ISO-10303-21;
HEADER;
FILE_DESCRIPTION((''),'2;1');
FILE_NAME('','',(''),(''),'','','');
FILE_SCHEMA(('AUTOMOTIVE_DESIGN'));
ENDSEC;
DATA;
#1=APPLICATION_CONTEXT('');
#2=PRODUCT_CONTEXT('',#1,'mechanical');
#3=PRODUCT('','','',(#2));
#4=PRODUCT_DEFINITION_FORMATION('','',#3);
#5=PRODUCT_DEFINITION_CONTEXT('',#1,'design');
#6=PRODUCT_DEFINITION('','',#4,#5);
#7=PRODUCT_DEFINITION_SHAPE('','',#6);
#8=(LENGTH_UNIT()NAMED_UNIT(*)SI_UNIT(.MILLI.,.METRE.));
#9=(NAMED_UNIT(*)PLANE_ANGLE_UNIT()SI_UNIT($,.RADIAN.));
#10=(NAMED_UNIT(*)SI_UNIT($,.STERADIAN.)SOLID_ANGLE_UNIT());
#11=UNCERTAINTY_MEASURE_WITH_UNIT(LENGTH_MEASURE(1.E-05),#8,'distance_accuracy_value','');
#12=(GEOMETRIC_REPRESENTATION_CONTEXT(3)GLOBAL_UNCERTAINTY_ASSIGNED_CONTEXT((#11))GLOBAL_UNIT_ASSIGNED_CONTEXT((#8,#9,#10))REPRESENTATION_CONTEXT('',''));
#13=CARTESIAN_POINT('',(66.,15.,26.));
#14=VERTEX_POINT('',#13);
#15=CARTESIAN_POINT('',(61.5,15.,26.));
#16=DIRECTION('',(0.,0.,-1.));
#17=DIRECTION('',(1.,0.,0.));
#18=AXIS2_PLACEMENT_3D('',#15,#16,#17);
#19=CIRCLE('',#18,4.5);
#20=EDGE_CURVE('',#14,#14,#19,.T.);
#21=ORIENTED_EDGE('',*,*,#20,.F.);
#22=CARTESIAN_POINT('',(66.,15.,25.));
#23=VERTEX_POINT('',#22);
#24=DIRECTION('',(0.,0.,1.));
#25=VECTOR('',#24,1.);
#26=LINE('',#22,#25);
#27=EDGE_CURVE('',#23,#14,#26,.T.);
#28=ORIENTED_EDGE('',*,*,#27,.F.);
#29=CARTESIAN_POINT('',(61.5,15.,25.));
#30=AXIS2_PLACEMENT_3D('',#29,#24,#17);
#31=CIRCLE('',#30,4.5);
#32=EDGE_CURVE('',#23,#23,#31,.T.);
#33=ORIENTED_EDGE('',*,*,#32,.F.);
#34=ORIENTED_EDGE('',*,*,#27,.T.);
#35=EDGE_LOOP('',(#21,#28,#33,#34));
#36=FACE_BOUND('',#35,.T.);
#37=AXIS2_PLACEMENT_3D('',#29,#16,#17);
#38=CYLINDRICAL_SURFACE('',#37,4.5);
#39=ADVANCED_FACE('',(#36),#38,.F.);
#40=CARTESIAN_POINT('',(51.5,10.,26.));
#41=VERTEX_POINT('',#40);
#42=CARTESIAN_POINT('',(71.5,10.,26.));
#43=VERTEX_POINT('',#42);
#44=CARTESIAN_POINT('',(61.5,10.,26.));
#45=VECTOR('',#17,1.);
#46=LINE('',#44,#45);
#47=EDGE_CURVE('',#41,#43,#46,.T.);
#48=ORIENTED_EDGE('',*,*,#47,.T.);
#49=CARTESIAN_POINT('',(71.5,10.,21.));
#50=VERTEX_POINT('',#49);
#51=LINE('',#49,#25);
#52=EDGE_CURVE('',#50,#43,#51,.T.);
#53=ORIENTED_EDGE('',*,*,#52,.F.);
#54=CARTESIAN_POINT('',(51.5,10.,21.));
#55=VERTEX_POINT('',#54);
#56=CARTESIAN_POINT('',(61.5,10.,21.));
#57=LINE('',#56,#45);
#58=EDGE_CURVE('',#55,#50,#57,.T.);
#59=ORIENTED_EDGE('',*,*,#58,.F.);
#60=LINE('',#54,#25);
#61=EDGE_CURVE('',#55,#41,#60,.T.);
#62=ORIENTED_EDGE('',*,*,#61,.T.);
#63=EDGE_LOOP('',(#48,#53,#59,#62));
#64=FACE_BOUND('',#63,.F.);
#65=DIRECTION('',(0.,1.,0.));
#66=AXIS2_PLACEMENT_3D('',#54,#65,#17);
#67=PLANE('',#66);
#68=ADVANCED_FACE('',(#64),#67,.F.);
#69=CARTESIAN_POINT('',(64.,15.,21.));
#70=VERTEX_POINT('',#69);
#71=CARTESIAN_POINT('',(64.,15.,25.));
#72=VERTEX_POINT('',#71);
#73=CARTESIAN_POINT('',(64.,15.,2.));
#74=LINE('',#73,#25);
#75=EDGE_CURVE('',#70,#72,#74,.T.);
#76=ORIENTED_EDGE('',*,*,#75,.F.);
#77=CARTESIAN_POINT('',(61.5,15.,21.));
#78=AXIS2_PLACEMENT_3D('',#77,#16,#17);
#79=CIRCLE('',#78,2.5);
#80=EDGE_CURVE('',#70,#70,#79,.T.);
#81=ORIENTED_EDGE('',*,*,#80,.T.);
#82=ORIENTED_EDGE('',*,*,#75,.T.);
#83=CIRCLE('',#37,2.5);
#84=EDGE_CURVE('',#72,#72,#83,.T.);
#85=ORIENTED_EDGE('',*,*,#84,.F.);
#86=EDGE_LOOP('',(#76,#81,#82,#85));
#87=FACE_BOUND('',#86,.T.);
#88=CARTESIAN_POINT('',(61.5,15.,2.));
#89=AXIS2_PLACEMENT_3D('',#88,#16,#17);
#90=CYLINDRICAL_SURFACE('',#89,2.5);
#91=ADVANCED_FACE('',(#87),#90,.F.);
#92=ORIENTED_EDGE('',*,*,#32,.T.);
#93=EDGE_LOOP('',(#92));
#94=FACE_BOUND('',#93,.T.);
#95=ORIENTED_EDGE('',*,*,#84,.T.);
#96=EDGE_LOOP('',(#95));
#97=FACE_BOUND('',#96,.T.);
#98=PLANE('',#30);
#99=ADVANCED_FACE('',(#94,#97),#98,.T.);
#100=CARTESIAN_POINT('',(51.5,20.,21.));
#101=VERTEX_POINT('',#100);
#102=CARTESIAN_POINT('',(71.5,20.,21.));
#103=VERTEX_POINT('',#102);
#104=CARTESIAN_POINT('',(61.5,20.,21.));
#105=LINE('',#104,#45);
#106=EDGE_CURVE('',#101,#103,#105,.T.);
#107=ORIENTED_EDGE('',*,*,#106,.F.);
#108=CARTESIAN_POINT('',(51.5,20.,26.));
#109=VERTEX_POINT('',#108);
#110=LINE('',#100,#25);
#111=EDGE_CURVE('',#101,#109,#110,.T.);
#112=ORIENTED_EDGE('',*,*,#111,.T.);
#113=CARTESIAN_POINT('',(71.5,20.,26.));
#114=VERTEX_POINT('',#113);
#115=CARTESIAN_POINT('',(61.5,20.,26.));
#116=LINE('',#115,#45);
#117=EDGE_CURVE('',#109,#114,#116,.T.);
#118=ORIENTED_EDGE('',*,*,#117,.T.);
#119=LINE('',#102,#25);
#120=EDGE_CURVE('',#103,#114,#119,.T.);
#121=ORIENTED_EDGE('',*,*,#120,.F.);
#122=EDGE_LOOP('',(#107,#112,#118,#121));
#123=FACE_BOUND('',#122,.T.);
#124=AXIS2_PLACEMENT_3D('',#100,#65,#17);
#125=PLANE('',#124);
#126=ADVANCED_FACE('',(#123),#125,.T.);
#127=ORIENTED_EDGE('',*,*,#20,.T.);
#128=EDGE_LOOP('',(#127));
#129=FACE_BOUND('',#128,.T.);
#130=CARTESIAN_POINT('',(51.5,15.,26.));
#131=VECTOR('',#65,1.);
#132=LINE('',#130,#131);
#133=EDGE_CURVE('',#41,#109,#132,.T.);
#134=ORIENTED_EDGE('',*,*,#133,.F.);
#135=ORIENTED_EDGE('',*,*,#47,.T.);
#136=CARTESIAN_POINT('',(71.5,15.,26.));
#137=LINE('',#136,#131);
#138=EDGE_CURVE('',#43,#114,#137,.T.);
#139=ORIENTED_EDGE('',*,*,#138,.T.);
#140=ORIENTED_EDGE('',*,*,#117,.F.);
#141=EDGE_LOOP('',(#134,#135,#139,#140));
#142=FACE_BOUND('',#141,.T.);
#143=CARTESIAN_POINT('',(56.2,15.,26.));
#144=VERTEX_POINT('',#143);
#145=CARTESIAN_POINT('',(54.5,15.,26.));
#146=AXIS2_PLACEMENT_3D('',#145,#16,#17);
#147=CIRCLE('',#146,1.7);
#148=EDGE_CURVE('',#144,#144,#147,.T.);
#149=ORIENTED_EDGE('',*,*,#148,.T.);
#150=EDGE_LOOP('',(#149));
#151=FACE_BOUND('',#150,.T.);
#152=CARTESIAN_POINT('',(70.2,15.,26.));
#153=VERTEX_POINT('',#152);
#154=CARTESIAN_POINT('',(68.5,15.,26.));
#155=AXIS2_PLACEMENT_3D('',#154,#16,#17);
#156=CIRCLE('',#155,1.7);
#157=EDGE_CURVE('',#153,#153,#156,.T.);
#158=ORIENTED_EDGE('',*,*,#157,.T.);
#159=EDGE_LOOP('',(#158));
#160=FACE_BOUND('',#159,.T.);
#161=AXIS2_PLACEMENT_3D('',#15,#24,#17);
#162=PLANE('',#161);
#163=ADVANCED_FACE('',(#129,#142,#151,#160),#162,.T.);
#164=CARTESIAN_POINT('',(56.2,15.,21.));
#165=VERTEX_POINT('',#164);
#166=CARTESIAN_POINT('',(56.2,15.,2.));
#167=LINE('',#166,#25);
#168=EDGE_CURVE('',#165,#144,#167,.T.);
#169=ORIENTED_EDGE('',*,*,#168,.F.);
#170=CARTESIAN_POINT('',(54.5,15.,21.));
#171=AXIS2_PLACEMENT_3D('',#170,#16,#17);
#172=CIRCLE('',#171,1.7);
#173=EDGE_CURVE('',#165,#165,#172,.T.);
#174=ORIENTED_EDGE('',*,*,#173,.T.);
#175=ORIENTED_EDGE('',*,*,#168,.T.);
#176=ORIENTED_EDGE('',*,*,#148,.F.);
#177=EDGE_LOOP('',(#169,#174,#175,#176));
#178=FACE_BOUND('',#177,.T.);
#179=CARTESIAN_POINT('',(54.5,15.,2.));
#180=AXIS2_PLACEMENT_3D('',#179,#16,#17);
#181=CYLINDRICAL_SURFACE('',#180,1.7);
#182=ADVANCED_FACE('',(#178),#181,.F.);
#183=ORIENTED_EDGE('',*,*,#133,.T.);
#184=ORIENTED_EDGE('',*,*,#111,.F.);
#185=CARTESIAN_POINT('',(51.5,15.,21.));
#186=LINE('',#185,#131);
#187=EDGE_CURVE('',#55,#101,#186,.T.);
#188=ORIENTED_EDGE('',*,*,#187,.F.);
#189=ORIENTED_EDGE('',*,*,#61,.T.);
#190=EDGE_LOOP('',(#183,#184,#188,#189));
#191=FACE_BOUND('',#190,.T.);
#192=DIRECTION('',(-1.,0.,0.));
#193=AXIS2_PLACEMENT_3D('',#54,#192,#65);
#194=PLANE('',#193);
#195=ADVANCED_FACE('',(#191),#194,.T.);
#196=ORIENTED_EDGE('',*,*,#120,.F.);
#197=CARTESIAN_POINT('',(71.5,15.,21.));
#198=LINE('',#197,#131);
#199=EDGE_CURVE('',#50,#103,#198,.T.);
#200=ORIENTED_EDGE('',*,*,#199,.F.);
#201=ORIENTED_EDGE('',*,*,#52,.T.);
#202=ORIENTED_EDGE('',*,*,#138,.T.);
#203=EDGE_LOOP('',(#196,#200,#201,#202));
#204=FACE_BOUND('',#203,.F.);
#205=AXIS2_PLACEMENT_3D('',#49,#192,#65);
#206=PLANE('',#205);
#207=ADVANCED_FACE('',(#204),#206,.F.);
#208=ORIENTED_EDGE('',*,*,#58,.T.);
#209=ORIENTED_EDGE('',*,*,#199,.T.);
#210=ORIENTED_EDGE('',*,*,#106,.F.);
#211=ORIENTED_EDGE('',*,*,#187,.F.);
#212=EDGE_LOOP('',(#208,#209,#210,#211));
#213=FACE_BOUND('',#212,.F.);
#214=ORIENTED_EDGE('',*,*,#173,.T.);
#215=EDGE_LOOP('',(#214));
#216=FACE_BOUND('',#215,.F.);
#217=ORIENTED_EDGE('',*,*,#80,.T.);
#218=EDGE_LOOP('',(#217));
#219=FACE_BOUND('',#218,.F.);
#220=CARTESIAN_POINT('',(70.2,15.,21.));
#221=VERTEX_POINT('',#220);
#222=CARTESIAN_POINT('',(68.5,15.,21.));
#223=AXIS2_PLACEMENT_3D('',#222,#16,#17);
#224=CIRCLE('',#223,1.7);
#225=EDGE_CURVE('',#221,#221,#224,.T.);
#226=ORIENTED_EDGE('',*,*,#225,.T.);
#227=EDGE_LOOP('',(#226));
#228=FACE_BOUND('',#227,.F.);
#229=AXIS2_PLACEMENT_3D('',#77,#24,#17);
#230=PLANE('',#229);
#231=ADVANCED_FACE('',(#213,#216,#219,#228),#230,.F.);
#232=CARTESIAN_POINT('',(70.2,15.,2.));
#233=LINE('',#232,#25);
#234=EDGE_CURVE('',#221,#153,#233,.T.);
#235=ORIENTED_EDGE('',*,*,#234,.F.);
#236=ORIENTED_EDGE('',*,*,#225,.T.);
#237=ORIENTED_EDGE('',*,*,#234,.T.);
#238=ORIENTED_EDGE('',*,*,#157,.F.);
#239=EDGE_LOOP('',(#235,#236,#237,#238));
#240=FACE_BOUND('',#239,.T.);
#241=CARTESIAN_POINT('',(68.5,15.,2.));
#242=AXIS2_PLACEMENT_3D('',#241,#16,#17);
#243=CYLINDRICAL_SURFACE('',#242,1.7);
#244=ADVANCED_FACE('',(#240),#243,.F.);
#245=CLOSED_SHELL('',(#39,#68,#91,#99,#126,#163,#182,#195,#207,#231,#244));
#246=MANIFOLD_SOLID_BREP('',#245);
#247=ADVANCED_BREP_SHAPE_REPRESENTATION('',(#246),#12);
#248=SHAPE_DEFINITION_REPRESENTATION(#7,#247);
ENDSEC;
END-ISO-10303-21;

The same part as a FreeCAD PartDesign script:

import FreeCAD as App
import Part
import Sketcher
Q = App.Units.Quantity

doc = App.newDocument("Part")
body = doc.addObject("PartDesign::Body", "Body")

# Sketch on XY plane
sketch1 = body.newObject("Sketcher::SketchObject", "Sketch")
sketch1.AttachmentSupport = (doc.getObject("XY_Plane"), [""])
sketch1.MapMode = "FlatFace"
sketch1.AttachmentOffset = App.Placement(App.Vector(0, 0, 2), App.Rotation())
sketch1.addGeometry(Part.Circle(App.Vector(68.5, 15, 0), App.Vector(0, 0, 1), 1.7), False)
sketch1.addConstraint(Sketcher.Constraint("Diameter", 0, Q("3.4 mm")))
sketch1.addConstraint(Sketcher.Constraint("DistanceY", -1, 1, 0, 3, Q("15 mm")))
sketch1.addConstraint(Sketcher.Constraint("DistanceX", -1, 1, 0, 3, Q("68.5 mm")))
pad1 = body.newObject("PartDesign::Pad", "Pad")
pad1.Profile = sketch1
pad1.Length = 50
body2 = doc.addObject("PartDesign::Body", "Body001")
body2.AllowCompound = True

# Sketch on XY plane
sketch2 = body2.newObject("Sketcher::SketchObject", "Sketch001")
sketch2.AttachmentSupport = (doc.getObject("XY_Plane001"), [""])
sketch2.MapMode = "FlatFace"
sketch2.AttachmentOffset = App.Placement(App.Vector(0, 0, 2), App.Rotation())
sketch2.addGeometry(Part.Circle(App.Vector(54.5, 15, 0), App.Vector(0, 0, 1), 1.7), False)
sketch2.addConstraint(Sketcher.Constraint("Diameter", 0, Q("3.4 mm")))
sketch2.addConstraint(Sketcher.Constraint("DistanceY", -1, 1, 0, 3, Q("15 mm")))
sketch2.addConstraint(Sketcher.Constraint("DistanceX", -1, 1, 0, 3, Q("54.5 mm")))
pad2 = body2.newObject("PartDesign::Pad", "Pad001")
pad2.Profile = sketch2
pad2.Length = 50
doc.recompute()

boolean = body2.newObject("PartDesign::Boolean", "Boolean")
boolean.Type = "Fuse"
boolean.addObjects([body])
body3 = doc.addObject("PartDesign::Body", "Body002")

# Sketch on XY plane
sketch3 = body3.newObject("Sketcher::SketchObject", "Sketch002")
sketch3.AttachmentSupport = (doc.getObject("XY_Plane002"), [""])
sketch3.MapMode = "FlatFace"
sketch3.AttachmentOffset = App.Placement(App.Vector(0, 0, 2), App.Rotation())
sketch3.addGeometry(Part.Circle(App.Vector(61.5, 15, 0), App.Vector(0, 0, 1), 2.5), False)
sketch3.addConstraint(Sketcher.Constraint("Diameter", 0, Q("5 mm")))
sketch3.addConstraint(Sketcher.Constraint("DistanceY", -1, 1, 0, 3, Q("15 mm")))
sketch3.addConstraint(Sketcher.Constraint("DistanceX", -1, 1, 0, 3, Q("61.5 mm")))
pad3 = body3.newObject("PartDesign::Pad", "Pad002")
pad3.Profile = sketch3
pad3.Length = 50
body4 = doc.addObject("PartDesign::Body", "Body003")

# Sketch on XY plane
sketch4 = body4.newObject("Sketcher::SketchObject", "Sketch003")
sketch4.AttachmentSupport = (doc.getObject("XY_Plane003"), [""])
sketch4.MapMode = "FlatFace"
sketch4.AttachmentOffset = App.Placement(App.Vector(0, 0, 25), App.Rotation())
sketch4.addGeometry(Part.Circle(App.Vector(61.5, 15, 0), App.Vector(0, 0, 1), 4.5), False)
sketch4.addConstraint(Sketcher.Constraint("Diameter", 0, Q("9 mm")))
sketch4.addConstraint(Sketcher.Constraint("DistanceY", -1, 1, 0, 3, Q("15 mm")))
sketch4.addConstraint(Sketcher.Constraint("DistanceX", -1, 1, 0, 3, Q("61.5 mm")))
pad4 = body4.newObject("PartDesign::Pad", "Pad003")
pad4.Profile = sketch4
pad4.Length = 4
doc.recompute()

boolean2 = body4.newObject("PartDesign::Boolean", "Boolean001")
boolean2.Type = "Fuse"
boolean2.addObjects([body3])
body5 = doc.addObject("PartDesign::Body", "Body004")

# Sketch on XY plane
sketch5 = body5.newObject("Sketcher::SketchObject", "Sketch004")
sketch5.AttachmentSupport = (doc.getObject("XY_Plane004"), [""])
sketch5.MapMode = "FlatFace"
sketch5.AttachmentOffset = App.Placement(App.Vector(0, 0, 21), App.Rotation())
sketch5.addGeometry(Part.LineSegment(App.Vector(52, 20, 0), App.Vector(52, 10, 0)), False)
sketch5.addGeometry(Part.LineSegment(App.Vector(52, 10, 0), App.Vector(72, 10, 0)), False)
sketch5.addGeometry(Part.LineSegment(App.Vector(72, 10, 0), App.Vector(72, 20, 0)), False)
sketch5.addGeometry(Part.LineSegment(App.Vector(72, 20, 0), App.Vector(52, 20, 0)), False)
sketch5.addConstraint(Sketcher.Constraint("Coincident", 0, 2, 1, 1))
sketch5.addConstraint(Sketcher.Constraint("Coincident", 1, 2, 2, 1))
sketch5.addConstraint(Sketcher.Constraint("Coincident", 2, 2, 3, 1))
sketch5.addConstraint(Sketcher.Constraint("Coincident", 3, 2, 0, 1))
sketch5.addConstraint(Sketcher.Constraint("Vertical", 0))
sketch5.addConstraint(Sketcher.Constraint("Horizontal", 1))
sketch5.addConstraint(Sketcher.Constraint("Vertical", 2))
sketch5.addConstraint(Sketcher.Constraint("Horizontal", 3))
sketch5.addConstraint(Sketcher.Constraint("DistanceX", 1, 1, 1, 2, Q("20 mm")))
sketch5.addConstraint(Sketcher.Constraint("DistanceY", 0, 2, 0, 1, Q("10 mm")))
sketch5.addConstraint(Sketcher.Constraint("DistanceY", -1, 1, 0, 2, Q("10 mm")))
sketch5.addConstraint(Sketcher.Constraint("DistanceX", -1, 1, 0, 2, Q("51.5 mm")))
pad5 = body5.newObject("PartDesign::Pad", "Pad004")
pad5.Profile = sketch5
pad5.Length = 5
doc.recompute()

boolean3 = body5.newObject("PartDesign::Boolean", "Boolean002")
boolean3.Type = "Cut"
boolean3.addObjects([body4])
doc.recompute()

boolean4 = body5.newObject("PartDesign::Boolean", "Boolean003")
boolean4.Type = "Cut"
boolean4.addObjects([body2])

doc.recompute()
